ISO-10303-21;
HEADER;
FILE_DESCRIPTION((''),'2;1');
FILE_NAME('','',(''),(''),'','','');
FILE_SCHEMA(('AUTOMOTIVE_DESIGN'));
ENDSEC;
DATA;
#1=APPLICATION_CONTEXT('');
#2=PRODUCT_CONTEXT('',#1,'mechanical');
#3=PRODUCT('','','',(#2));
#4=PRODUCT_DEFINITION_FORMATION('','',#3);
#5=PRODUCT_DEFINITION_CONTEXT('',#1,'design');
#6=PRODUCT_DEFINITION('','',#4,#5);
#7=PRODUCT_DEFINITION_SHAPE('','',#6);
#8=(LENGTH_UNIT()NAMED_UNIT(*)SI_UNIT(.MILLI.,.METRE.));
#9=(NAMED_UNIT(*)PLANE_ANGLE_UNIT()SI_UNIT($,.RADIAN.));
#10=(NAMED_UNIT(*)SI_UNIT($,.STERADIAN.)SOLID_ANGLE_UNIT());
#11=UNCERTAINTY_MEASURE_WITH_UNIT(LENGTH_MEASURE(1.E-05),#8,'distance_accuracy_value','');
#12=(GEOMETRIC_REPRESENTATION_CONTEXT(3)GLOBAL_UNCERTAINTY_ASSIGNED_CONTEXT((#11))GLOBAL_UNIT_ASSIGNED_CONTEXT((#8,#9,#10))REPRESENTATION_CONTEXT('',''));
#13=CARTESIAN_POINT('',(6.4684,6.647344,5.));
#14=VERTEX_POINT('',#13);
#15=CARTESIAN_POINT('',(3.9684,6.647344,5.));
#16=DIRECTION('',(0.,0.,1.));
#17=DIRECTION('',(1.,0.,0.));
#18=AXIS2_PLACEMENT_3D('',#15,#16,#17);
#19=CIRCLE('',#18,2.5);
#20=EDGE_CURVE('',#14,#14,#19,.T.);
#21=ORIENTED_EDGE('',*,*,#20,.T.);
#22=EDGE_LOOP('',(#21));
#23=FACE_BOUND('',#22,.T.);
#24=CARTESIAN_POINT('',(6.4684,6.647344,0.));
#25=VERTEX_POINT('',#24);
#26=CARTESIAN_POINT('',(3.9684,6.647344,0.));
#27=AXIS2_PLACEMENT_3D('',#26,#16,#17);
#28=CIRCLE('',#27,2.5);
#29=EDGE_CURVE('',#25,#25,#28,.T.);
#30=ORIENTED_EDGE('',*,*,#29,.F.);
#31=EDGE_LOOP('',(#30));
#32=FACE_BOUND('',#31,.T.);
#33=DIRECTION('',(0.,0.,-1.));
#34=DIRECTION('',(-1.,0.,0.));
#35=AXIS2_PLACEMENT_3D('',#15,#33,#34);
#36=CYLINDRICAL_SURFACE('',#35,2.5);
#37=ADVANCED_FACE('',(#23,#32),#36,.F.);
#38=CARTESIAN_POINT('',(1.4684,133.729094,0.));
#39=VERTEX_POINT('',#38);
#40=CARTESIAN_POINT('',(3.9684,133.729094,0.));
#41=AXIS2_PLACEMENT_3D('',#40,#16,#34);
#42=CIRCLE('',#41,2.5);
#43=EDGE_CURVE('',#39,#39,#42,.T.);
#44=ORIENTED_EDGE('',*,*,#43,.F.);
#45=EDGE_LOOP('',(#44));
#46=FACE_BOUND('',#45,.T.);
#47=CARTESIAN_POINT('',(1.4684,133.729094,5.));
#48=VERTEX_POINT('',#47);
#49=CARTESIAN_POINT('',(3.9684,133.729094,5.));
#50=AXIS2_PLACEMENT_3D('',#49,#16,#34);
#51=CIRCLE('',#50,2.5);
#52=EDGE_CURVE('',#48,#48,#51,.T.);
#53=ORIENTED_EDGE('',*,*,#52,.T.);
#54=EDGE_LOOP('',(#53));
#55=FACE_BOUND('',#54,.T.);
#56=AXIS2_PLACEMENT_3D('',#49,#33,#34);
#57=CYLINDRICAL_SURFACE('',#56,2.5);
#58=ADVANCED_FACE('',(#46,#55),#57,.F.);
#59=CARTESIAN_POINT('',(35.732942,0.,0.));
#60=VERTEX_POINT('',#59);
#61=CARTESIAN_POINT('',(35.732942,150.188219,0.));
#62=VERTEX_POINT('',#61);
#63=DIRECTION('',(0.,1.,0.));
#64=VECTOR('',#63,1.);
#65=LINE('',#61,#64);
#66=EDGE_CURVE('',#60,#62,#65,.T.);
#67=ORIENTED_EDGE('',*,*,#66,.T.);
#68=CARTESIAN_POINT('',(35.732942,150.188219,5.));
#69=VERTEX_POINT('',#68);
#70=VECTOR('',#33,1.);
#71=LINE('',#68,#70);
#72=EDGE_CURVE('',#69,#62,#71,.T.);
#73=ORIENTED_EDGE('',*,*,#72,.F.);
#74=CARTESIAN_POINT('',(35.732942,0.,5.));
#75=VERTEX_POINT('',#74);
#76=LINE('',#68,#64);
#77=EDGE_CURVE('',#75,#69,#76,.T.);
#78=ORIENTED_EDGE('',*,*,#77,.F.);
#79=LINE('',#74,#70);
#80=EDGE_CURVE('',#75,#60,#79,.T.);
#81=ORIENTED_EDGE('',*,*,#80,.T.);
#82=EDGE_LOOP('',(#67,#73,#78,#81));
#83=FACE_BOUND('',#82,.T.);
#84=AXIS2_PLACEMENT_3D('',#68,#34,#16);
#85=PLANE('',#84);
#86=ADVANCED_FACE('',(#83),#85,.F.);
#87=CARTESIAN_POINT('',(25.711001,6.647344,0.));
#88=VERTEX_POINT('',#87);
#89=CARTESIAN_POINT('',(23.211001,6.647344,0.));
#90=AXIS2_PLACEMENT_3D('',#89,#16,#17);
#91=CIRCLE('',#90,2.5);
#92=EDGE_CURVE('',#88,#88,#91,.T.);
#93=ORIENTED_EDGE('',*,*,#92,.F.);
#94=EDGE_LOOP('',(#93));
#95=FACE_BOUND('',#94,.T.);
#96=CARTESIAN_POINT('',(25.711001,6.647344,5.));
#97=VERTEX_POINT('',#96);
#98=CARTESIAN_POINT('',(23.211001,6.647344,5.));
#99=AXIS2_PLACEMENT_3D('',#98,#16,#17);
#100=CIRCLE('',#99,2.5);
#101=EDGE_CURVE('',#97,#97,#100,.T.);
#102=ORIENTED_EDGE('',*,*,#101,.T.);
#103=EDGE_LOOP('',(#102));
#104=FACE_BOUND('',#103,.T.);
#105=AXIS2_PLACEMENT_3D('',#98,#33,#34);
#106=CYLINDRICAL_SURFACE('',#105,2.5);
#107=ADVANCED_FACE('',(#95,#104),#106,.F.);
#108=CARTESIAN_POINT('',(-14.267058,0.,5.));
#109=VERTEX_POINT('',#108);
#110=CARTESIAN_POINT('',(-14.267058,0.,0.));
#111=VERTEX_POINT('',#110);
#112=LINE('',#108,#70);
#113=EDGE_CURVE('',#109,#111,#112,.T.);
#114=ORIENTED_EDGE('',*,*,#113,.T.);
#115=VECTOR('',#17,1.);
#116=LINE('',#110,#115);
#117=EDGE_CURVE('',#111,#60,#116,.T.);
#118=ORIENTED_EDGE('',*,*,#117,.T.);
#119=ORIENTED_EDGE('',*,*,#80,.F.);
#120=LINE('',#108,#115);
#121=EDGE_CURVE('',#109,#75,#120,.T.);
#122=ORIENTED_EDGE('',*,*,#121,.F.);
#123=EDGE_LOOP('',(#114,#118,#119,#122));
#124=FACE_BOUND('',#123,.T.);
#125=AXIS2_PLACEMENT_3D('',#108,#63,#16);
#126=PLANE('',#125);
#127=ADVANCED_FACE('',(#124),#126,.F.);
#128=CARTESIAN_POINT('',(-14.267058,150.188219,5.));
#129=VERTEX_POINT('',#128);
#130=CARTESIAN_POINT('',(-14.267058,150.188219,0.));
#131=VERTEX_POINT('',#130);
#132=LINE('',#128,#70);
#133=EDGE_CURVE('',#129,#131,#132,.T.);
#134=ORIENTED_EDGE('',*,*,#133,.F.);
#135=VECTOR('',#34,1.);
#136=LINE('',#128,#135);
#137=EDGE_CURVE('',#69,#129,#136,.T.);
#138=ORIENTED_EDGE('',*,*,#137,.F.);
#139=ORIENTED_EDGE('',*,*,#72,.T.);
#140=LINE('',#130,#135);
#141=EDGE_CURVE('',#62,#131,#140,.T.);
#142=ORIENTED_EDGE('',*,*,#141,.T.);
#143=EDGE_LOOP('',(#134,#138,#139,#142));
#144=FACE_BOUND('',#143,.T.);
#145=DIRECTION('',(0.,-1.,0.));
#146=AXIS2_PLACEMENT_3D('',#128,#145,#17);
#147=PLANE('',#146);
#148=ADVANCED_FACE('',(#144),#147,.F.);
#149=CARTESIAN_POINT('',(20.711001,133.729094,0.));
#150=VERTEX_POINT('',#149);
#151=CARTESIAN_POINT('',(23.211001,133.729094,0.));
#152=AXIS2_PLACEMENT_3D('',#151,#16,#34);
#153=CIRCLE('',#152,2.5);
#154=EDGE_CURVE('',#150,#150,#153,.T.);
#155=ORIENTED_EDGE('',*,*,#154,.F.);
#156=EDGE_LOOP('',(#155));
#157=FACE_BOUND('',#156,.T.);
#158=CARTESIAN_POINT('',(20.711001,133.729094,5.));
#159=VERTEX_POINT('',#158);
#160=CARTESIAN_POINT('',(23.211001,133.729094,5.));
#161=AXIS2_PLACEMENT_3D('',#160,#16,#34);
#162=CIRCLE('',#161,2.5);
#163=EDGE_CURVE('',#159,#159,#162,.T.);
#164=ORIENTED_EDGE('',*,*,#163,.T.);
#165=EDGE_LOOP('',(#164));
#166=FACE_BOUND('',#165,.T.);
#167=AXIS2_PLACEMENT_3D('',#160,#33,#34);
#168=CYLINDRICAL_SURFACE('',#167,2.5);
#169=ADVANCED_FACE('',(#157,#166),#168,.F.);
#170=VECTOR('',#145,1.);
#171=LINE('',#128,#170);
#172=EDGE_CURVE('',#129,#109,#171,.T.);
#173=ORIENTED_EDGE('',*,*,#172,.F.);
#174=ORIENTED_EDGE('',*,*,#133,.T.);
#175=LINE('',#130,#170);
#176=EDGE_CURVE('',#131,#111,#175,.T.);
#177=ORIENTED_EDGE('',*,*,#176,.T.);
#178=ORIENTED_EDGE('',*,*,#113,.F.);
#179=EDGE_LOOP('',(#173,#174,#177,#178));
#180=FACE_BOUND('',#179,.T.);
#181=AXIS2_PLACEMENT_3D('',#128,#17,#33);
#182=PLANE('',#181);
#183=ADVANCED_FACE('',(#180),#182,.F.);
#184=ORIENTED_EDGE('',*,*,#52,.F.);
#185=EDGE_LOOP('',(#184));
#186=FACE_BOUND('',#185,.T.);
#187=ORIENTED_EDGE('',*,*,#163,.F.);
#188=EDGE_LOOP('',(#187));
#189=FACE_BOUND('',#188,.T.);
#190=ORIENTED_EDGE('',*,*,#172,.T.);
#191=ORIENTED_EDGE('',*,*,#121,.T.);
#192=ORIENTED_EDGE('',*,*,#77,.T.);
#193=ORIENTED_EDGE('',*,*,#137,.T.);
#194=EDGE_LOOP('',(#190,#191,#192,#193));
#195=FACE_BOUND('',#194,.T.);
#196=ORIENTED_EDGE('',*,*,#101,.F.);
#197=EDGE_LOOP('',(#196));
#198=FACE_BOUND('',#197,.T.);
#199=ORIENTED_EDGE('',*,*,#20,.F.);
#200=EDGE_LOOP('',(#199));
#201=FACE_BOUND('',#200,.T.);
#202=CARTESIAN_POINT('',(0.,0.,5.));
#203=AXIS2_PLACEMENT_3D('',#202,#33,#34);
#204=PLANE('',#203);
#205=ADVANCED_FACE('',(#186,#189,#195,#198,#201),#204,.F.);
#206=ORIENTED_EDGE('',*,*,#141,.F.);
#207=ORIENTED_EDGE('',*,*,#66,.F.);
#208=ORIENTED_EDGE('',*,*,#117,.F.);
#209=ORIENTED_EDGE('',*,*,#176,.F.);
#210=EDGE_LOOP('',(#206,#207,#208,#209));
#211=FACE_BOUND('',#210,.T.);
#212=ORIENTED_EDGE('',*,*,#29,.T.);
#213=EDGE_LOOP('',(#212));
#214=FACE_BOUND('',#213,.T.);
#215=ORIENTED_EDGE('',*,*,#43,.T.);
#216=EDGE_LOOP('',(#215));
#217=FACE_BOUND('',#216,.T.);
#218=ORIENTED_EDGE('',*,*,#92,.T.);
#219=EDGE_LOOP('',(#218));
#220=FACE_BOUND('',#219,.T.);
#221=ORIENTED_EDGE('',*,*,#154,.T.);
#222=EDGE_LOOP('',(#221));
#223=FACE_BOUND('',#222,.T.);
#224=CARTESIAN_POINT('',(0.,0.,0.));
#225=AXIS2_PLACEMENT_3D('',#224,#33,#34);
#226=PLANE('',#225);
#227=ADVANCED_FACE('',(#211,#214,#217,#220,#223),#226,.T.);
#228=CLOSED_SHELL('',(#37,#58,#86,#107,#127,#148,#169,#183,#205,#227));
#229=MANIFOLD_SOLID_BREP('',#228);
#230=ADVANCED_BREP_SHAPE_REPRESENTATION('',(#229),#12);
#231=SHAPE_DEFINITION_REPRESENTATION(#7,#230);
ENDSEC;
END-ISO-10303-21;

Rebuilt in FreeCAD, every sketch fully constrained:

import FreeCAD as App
import Part
import Sketcher
from FreeCAD import Vector
Q = App.Units.Quantity

doc = App.newDocument("Part")
params = doc.addObject("Spreadsheet::Sheet", "Params")
for row, (alias, value) in enumerate([
    ("sketch1_diameter", "5 mm"),
    ("sketch1_width", "50 mm"),
    ("pad1_length", "5 mm"),
], start=1):
    params.set(f"A{row}", alias)
    params.set(f"B{row}", "=" + value)
    params.setAlias(f"B{row}", alias)

body = doc.addObject("PartDesign::Body", "Body")

sketch1 = body.newObject("Sketcher::SketchObject", "Sketch")
sketch1.AttachmentSupport = (doc.getObject("XY_Plane"), [""])
sketch1.MapMode = "FlatFace"
sketch1.addGeometry(Part.LineSegment(Vector(-14.3, 150.2, 0), Vector(-14.3, 0, 0)), False)
sketch1.addGeometry(Part.LineSegment(Vector(-14.3, 0, 0), Vector(35.7, 0, 0)), False)
sketch1.addGeometry(Part.LineSegment(Vector(35.7, 0, 0), Vector(35.7, 150.2, 0)), False)
sketch1.addGeometry(Part.LineSegment(Vector(35.7, 150.2, 0), Vector(-14.3, 150.2, 0)), False)
sketch1.addGeometry(Part.Circle(Vector(4, 6.6, 0), Vector(0, 0, 1), 2.5), False)
sketch1.addGeometry(Part.Circle(Vector(23.2, 6.6, 0), Vector(0, 0, 1), 2.5), False)
sketch1.addGeometry(Part.Circle(Vector(4, 133.7, 0), Vector(0, 0, 1), 2.5), False)
sketch1.addGeometry(Part.Circle(Vector(23.2, 133.7, 0), Vector(0, 0, 1), 2.5), False)
sketch1.addConstraint(Sketcher.Constraint("Coincident", 0, 2, 1, 1))
sketch1.addConstraint(Sketcher.Constraint("Coincident", 1, 2, 2, 1))
sketch1.addConstraint(Sketcher.Constraint("Coincident", 2, 2, 3, 1))
sketch1.addConstraint(Sketcher.Constraint("Coincident", 3, 2, 0, 1))
sketch1.addConstraint(Sketcher.Constraint("Vertical", 0))
sketch1.addConstraint(Sketcher.Constraint("Horizontal", 1))
sketch1.addConstraint(Sketcher.Constraint("Vertical", 2))
sketch1.addConstraint(Sketcher.Constraint("Horizontal", 3))
sketch1.addConstraint(Sketcher.Constraint("Equal", 4, 5))
sketch1.addConstraint(Sketcher.Constraint("Equal", 5, 6))
sketch1.addConstraint(Sketcher.Constraint("Equal", 6, 7))
sketch1.addConstraint(Sketcher.Constraint("PointOnObject", 0, 2, -1))
sketch1.addConstraint(Sketcher.Constraint("Horizontal", 4, 3, 5, 3))
sketch1.addConstraint(Sketcher.Constraint("Horizontal", 6, 3, 7, 3))
sketch1.addConstraint(Sketcher.Constraint("Vertical", 4, 3, 6, 3))
sketch1.addConstraint(Sketcher.Constraint("Vertical", 5, 3, 7, 3))
sketch1.addConstraint(Sketcher.Constraint("Diameter", 4, Q("5 mm")))
sketch1.addConstraint(Sketcher.Constraint("DistanceX", 1, 1, 1, 2, Q("50 mm")))
sketch1.addConstraint(Sketcher.Constraint("DistanceX", -1, 1, 5, 3, Q("23.211001 mm")))
sketch1.addConstraint(Sketcher.Constraint("DistanceY", 0, 2, 0, 1, Q("150.188219 mm")))
sketch1.addConstraint(Sketcher.Constraint("DistanceX", -1, 1, 4, 3, Q("3.9684 mm")))
sketch1.addConstraint(Sketcher.Constraint("DistanceY", 4, 3, 6, 3, Q("127.081751 mm")))
sketch1.addConstraint(Sketcher.Constraint("DistanceX", 0, 2, 5, 3, Q("37.478058 mm")))
sketch1.addConstraint(Sketcher.Constraint("DistanceY", -1, 1, 4, 3, Q("6.647344 mm")))
sketch1.setExpression("Constraints[16]", "Params.sketch1_diameter")
sketch1.setExpression("Constraints[17]", "Params.sketch1_width")
pad1 = body.newObject("PartDesign::Pad", "Pad")
pad1.Profile = sketch1
pad1.setExpression("Length", "Params.pad1_length")

doc.recompute()
